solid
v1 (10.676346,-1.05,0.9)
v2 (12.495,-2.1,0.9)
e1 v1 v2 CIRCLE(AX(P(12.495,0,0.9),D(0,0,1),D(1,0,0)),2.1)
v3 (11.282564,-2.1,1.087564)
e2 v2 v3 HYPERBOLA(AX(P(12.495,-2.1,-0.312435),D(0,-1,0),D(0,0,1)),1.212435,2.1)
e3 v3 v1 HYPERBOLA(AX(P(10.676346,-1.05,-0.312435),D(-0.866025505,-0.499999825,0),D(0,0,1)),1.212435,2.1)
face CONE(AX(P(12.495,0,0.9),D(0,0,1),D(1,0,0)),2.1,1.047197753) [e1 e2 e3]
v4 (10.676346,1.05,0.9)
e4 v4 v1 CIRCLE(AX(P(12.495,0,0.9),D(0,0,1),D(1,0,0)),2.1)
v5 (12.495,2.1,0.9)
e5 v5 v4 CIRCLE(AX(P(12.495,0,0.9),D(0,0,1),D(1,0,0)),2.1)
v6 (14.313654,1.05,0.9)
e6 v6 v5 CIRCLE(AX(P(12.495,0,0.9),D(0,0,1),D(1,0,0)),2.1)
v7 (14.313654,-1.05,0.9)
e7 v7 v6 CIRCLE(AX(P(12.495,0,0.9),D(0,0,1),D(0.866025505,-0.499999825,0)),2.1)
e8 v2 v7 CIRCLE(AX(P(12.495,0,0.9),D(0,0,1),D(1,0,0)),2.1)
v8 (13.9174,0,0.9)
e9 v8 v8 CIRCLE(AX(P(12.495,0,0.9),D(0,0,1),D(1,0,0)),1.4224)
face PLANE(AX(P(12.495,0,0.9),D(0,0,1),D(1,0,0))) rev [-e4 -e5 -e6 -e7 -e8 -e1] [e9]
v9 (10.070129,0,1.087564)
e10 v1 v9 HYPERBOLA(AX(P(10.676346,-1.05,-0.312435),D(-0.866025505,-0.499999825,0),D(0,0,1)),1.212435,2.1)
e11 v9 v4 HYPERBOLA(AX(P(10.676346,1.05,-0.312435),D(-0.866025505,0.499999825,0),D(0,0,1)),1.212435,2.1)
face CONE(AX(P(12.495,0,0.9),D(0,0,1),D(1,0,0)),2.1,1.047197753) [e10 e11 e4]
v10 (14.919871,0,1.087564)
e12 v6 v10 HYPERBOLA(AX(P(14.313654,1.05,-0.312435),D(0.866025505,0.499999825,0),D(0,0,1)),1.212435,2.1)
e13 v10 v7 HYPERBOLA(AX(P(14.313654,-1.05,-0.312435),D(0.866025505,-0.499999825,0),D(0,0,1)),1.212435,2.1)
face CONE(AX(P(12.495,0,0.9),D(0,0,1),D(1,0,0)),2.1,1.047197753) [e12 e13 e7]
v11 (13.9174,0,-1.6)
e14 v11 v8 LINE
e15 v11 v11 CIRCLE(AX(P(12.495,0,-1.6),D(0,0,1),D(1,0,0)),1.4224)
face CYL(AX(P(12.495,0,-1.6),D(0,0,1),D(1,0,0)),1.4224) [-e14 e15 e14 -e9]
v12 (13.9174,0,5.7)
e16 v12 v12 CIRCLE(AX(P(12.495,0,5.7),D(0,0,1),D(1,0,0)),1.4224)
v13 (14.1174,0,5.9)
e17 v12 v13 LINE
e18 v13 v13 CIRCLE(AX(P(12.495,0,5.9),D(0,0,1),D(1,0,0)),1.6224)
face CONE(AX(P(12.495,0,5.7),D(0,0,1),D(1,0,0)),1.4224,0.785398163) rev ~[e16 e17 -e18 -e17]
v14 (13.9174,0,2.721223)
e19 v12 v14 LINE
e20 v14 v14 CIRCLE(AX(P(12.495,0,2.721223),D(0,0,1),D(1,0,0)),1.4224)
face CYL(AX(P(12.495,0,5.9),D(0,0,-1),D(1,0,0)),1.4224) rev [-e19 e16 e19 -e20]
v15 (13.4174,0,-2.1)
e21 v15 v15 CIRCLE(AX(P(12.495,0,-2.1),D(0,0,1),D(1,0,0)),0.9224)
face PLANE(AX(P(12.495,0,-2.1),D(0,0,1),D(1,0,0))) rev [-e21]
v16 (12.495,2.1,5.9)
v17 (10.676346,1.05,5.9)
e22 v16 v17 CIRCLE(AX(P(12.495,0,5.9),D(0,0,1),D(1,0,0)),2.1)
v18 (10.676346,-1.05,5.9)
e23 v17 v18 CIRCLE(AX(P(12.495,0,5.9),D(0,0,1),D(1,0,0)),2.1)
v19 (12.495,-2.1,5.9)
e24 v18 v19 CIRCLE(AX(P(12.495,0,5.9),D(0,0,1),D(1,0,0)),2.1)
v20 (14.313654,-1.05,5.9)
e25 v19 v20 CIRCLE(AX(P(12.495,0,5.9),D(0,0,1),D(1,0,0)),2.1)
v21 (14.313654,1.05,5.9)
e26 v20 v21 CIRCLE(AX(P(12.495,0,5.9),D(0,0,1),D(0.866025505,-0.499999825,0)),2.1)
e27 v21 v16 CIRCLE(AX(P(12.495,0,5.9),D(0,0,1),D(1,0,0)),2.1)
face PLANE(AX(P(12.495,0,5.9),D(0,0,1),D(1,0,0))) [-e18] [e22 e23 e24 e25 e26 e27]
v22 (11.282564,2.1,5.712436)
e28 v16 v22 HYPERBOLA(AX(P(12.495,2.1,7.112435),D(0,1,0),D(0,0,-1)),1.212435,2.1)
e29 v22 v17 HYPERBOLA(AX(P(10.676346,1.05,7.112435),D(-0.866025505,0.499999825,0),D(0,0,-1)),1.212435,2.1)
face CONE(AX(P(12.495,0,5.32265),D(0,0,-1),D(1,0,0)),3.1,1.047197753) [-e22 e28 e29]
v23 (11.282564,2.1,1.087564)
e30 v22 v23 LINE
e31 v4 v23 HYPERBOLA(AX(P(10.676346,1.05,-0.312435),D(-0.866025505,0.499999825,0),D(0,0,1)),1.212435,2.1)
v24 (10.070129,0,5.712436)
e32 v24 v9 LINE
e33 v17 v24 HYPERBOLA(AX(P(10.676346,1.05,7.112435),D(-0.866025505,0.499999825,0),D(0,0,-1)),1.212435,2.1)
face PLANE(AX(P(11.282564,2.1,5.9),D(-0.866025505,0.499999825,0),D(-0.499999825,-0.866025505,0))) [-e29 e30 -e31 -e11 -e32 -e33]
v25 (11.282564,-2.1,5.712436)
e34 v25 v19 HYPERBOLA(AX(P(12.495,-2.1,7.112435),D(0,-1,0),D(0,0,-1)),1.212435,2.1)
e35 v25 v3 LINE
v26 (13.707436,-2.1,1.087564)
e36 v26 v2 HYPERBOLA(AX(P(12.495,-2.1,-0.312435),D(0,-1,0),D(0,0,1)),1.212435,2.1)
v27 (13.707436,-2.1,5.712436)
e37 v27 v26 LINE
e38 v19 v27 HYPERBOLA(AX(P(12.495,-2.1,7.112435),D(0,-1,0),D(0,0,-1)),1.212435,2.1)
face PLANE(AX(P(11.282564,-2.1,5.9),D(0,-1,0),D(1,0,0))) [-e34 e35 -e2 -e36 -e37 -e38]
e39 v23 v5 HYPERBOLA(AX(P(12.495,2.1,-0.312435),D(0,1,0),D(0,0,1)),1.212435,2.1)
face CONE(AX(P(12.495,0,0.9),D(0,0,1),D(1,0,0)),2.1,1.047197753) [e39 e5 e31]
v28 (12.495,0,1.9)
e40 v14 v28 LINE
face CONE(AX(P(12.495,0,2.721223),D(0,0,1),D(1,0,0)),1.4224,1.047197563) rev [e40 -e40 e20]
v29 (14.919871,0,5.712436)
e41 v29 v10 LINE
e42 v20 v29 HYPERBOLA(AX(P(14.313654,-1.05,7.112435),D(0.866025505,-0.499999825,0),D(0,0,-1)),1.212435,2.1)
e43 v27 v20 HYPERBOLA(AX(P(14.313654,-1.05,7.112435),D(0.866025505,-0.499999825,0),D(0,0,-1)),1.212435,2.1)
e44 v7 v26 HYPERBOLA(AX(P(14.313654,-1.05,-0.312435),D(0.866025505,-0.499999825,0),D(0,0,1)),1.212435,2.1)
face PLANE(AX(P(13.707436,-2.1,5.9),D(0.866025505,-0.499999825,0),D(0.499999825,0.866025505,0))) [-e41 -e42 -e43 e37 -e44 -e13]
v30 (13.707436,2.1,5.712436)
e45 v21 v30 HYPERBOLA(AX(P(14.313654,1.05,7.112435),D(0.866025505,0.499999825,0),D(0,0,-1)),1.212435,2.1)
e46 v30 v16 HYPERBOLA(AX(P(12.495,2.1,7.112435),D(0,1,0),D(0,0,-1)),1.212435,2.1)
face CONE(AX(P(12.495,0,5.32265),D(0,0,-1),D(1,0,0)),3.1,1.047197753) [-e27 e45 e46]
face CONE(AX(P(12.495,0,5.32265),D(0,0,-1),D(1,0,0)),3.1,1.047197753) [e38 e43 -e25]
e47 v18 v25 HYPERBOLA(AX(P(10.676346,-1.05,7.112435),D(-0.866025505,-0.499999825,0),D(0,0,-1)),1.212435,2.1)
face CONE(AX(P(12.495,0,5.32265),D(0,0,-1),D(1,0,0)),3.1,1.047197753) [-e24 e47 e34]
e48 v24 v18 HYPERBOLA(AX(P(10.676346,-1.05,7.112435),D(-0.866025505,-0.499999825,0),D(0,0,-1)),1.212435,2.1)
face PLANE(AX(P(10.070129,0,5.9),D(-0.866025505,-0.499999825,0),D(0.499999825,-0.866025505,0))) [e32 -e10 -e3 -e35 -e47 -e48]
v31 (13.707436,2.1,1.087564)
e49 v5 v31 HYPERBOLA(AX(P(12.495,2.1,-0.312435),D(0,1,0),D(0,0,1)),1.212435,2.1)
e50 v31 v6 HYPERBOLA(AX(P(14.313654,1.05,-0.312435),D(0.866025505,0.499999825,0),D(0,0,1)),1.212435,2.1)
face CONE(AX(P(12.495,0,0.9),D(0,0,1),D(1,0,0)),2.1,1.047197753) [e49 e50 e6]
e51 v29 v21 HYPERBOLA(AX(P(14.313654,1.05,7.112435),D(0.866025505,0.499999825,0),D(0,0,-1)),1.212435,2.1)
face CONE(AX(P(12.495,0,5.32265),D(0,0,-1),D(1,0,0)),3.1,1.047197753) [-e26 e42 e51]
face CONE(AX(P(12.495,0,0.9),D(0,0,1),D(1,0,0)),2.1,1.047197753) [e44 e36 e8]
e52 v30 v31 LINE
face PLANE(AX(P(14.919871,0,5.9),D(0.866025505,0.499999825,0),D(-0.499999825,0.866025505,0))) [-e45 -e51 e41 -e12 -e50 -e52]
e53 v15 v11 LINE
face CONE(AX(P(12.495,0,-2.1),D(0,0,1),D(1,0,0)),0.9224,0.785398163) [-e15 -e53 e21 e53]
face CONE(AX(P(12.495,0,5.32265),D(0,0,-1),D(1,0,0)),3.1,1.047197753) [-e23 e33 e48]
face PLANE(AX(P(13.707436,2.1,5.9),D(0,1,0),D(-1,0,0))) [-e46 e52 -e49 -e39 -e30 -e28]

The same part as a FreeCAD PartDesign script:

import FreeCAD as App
import Part
import Sketcher
from FreeCAD import Vector
Q = App.Units.Quantity


def edges_at(feature, points):
    """Names of the edges that pass closest to the given points."""
    edges = feature.Shape.Edges
    near = lambda p: min(range(len(edges)), key=lambda i: edges[i].distToShape(Part.Vertex(*p))[0])
    return sorted({f"Edge{near(p) + 1}" for p in points})

doc = App.newDocument("Part")
body = doc.addObject("PartDesign::Body", "Body")

sketch1 = doc.addObject("Sketcher::SketchObject", "Sketch")
body.addObject(sketch1)
sketch1.AttachmentSupport = (doc.XZ_Plane, [""])
sketch1.MapMode = "FlatFace"
sketch1.addGeometry([
    Part.LineSegment(Vector(1.4, 5, 0), Vector(1.4, 1.8, 0)),
    Part.LineSegment(Vector(1.4, 1.8, 0), Vector(0, 1, 0)),
    Part.LineSegment(Vector(0, 1, 0), Vector(0, -3, 0)),
    Part.LineSegment(Vector(0, -3, 0), Vector(0.9, -3, 0)),
    Part.LineSegment(Vector(0.9, -3, 0), Vector(1.4, -2.5, 0)),
    Part.LineSegment(Vector(1.4, -2.5, 0), Vector(1.4, 0, 0)),
    Part.LineSegment(Vector(1.4, 0, 0), Vector(2.1, 0, 0)),
    Part.LineSegment(Vector(2.1, 0, 0), Vector(3.1, 0.6, 0)),
    Part.LineSegment(Vector(3.1, 0.6, 0), Vector(3.1, 4.4, 0)),
    Part.LineSegment(Vector(3.1, 4.4, 0), Vector(2.1, 5, 0)),
    Part.LineSegment(Vector(2.1, 5, 0), Vector(1.4, 5, 0)),
], False)
sketch1.addConstraint([
    Sketcher.Constraint("Coincident", 0, 2, 1, 1),
    Sketcher.Constraint("Coincident", 1, 2, 2, 1),
    Sketcher.Constraint("Coincident", 2, 2, 3, 1),
    Sketcher.Constraint("Coincident", 3, 2, 4, 1),
    Sketcher.Constraint("Coincident", 4, 2, 5, 1),
    Sketcher.Constraint("Coincident", 5, 2, 6, 1),
    Sketcher.Constraint("Coincident", 6, 2, 7, 1),
    Sketcher.Constraint("Coincident", 7, 2, 8, 1),
    Sketcher.Constraint("Coincident", 8, 2, 9, 1),
    Sketcher.Constraint("Coincident", 9, 2, 10, 1),
    Sketcher.Constraint("Coincident", 10, 2, 0, 1),
    Sketcher.Constraint("Vertical", 0),
    Sketcher.Constraint("Vertical", 2),
    Sketcher.Constraint("Horizontal", 3),
    Sketcher.Constraint("Vertical", 5),
    Sketcher.Constraint("Horizontal", 6),
    Sketcher.Constraint("Vertical", 8),
    Sketcher.Constraint("Horizontal", 10),
    Sketcher.Constraint("PointOnObject", 1, 2, -2),
    Sketcher.Constraint("PointOnObject", 5, 2, -1),
    Sketcher.Constraint("Parallel", 1, 7),
    Sketcher.Constraint("Vertical", 0, 2, 4, 2),
    Sketcher.Constraint("Vertical", 6, 2, 9, 2),
    Sketcher.Constraint("Equal", 7, 9),
    Sketcher.Constraint("DistanceY", 2, 2, 2, 1, Q("4 mm")),
    Sketcher.Constraint("Angle", 1, Q("-150.000001 deg")),
    Sketcher.Constraint("Angle", 4, Q("45 deg")),
    Sketcher.Constraint("DistanceY", 5, 1, 5, 2, Q("2.5 mm")),
    Sketcher.Constraint("DistanceY", -1, 1, 1, 2, Q("1 mm")),
    Sketcher.Constraint("DistanceY", -1, 1, 9, 2, Q("5 mm")),
    Sketcher.Constraint("DistanceX", 6, 2, 7, 2, Q("1 mm")),
    Sketcher.Constraint("DistanceX", -1, 1, 6, 2, Q("2.1 mm")),
    Sketcher.Constraint("DistanceX", 3, 1, 3, 2, Q("0.9224 mm")),
])
revolution = doc.addObject("PartDesign::Revolution", "Revolution")
body.addObject(revolution)
revolution.Profile = sketch1
revolution.ReferenceAxis = (sketch1, ["V_Axis"])
revolution.Angle = 360

sketch2 = doc.addObject("Sketcher::SketchObject", "Sketch001")
body.addObject(sketch2)
sketch2.AttachmentSupport = (doc.XY_Plane, [""])
sketch2.MapMode = "FlatFace"
sketch2.AttachmentOffset = App.Placement(Vector(0, 0, 5), App.Rotation())
sketch2.addGeometry([
    Part.Circle(Vector(0, 0, 0), Vector(0, 0, 1), 3.6),
    Part.LineSegment(Vector(-1.2, -2.1, 0), Vector(-2.4, 0, 0)),
    Part.LineSegment(Vector(-2.4, 0, 0), Vector(-1.2, 2.1, 0)),
    Part.LineSegment(Vector(-1.2, 2.1, 0), Vector(1.2, 2.1, 0)),
    Part.LineSegment(Vector(1.2, 2.1, 0), Vector(2.4, 0, 0)),
    Part.LineSegment(Vector(2.4, 0, 0), Vector(1.2, -2.1, 0)),
    Part.LineSegment(Vector(1.2, -2.1, 0), Vector(-1.2, -2.1, 0)),
], False)
sketch2.addConstraint([
    Sketcher.Constraint("Coincident", 1, 2, 2, 1),
    Sketcher.Constraint("Coincident", 2, 2, 3, 1),
    Sketcher.Constraint("Coincident", 3, 2, 4, 1),
    Sketcher.Constraint("Coincident", 4, 2, 5, 1),
    Sketcher.Constraint("Coincident", 5, 2, 6, 1),
    Sketcher.Constraint("Coincident", 6, 2, 1, 1),
    Sketcher.Constraint("Horizontal", 3),
    Sketcher.Constraint("Horizontal", 6),
    Sketcher.Constraint("Coincident", 0, 3, -1, 1),
    Sketcher.Constraint("Symmetric", 1, 2, 4, 2, -1, 1),
    Sketcher.Constraint("Symmetric", 2, 2, 5, 2, -1, 1),
    Sketcher.Constraint("PointOnObject", 1, 2, -1),
    Sketcher.Constraint("Parallel", 1, 4),
    Sketcher.Constraint("Vertical", 3, 2, 5, 2),
    Sketcher.Constraint("Angle", 1, Q("119.999988 deg")),
    Sketcher.Constraint("DistanceY", -1, 1, 2, 2, Q("2.1 mm")),
    Sketcher.Constraint("Diameter", 0, Q("7.260898 mm")),
    Sketcher.Constraint("DistanceX", 3, 1, 3, 2, Q("2.424872 mm")),
])
pocket1 = doc.addObject("PartDesign::Pocket", "Pocket")
body.addObject(pocket1)
pocket1.Profile = sketch2
pocket1.Type = "ThroughAll"
doc.recompute()

chamfer = doc.addObject("PartDesign::Chamfer", "Chamfer")
body.addObject(chamfer)
chamfer.Base = (pocket1, edges_at(pocket1, [(-1.422, 0, 5)]))
chamfer.Size = 0.2
body2 = doc.addObject("PartDesign::Body", "Body001")
doc.recompute()

body.Placement = App.Placement(Vector(-12.495, 0, 0.9), App.Rotation(Vector(0, 0, 1), 0))
boolean = doc.addObject("PartDesign::Boolean", "Boolean")
body2.addObject(boolean)
boolean.Type = "Fuse"
boolean.addObjects([body])
body3 = doc.addObject("PartDesign::Body", "Body002")
doc.recompute()

body2.Placement = App.Placement(Vector(12.495, 0, -0.9), App.Rotation(Vector(0, 0, 1), 0))
boolean2 = doc.addObject("PartDesign::Boolean", "Boolean001")
body3.addObject(boolean2)
boolean2.Type = "Fuse"
boolean2.addObjects([body2])
body4 = doc.addObject("PartDesign::Body", "Body003")
doc.recompute()

body3.Placement = App.Placement(Vector(12.495, 0, 0.9), App.Rotation(Vector(0, 0, 1), 0))
boolean3 = doc.addObject("PartDesign::Boolean", "Boolean002")
body4.addObject(boolean3)
boolean3.Type = "Fuse"
boolean3.addObjects([body3])

doc.recompute()
